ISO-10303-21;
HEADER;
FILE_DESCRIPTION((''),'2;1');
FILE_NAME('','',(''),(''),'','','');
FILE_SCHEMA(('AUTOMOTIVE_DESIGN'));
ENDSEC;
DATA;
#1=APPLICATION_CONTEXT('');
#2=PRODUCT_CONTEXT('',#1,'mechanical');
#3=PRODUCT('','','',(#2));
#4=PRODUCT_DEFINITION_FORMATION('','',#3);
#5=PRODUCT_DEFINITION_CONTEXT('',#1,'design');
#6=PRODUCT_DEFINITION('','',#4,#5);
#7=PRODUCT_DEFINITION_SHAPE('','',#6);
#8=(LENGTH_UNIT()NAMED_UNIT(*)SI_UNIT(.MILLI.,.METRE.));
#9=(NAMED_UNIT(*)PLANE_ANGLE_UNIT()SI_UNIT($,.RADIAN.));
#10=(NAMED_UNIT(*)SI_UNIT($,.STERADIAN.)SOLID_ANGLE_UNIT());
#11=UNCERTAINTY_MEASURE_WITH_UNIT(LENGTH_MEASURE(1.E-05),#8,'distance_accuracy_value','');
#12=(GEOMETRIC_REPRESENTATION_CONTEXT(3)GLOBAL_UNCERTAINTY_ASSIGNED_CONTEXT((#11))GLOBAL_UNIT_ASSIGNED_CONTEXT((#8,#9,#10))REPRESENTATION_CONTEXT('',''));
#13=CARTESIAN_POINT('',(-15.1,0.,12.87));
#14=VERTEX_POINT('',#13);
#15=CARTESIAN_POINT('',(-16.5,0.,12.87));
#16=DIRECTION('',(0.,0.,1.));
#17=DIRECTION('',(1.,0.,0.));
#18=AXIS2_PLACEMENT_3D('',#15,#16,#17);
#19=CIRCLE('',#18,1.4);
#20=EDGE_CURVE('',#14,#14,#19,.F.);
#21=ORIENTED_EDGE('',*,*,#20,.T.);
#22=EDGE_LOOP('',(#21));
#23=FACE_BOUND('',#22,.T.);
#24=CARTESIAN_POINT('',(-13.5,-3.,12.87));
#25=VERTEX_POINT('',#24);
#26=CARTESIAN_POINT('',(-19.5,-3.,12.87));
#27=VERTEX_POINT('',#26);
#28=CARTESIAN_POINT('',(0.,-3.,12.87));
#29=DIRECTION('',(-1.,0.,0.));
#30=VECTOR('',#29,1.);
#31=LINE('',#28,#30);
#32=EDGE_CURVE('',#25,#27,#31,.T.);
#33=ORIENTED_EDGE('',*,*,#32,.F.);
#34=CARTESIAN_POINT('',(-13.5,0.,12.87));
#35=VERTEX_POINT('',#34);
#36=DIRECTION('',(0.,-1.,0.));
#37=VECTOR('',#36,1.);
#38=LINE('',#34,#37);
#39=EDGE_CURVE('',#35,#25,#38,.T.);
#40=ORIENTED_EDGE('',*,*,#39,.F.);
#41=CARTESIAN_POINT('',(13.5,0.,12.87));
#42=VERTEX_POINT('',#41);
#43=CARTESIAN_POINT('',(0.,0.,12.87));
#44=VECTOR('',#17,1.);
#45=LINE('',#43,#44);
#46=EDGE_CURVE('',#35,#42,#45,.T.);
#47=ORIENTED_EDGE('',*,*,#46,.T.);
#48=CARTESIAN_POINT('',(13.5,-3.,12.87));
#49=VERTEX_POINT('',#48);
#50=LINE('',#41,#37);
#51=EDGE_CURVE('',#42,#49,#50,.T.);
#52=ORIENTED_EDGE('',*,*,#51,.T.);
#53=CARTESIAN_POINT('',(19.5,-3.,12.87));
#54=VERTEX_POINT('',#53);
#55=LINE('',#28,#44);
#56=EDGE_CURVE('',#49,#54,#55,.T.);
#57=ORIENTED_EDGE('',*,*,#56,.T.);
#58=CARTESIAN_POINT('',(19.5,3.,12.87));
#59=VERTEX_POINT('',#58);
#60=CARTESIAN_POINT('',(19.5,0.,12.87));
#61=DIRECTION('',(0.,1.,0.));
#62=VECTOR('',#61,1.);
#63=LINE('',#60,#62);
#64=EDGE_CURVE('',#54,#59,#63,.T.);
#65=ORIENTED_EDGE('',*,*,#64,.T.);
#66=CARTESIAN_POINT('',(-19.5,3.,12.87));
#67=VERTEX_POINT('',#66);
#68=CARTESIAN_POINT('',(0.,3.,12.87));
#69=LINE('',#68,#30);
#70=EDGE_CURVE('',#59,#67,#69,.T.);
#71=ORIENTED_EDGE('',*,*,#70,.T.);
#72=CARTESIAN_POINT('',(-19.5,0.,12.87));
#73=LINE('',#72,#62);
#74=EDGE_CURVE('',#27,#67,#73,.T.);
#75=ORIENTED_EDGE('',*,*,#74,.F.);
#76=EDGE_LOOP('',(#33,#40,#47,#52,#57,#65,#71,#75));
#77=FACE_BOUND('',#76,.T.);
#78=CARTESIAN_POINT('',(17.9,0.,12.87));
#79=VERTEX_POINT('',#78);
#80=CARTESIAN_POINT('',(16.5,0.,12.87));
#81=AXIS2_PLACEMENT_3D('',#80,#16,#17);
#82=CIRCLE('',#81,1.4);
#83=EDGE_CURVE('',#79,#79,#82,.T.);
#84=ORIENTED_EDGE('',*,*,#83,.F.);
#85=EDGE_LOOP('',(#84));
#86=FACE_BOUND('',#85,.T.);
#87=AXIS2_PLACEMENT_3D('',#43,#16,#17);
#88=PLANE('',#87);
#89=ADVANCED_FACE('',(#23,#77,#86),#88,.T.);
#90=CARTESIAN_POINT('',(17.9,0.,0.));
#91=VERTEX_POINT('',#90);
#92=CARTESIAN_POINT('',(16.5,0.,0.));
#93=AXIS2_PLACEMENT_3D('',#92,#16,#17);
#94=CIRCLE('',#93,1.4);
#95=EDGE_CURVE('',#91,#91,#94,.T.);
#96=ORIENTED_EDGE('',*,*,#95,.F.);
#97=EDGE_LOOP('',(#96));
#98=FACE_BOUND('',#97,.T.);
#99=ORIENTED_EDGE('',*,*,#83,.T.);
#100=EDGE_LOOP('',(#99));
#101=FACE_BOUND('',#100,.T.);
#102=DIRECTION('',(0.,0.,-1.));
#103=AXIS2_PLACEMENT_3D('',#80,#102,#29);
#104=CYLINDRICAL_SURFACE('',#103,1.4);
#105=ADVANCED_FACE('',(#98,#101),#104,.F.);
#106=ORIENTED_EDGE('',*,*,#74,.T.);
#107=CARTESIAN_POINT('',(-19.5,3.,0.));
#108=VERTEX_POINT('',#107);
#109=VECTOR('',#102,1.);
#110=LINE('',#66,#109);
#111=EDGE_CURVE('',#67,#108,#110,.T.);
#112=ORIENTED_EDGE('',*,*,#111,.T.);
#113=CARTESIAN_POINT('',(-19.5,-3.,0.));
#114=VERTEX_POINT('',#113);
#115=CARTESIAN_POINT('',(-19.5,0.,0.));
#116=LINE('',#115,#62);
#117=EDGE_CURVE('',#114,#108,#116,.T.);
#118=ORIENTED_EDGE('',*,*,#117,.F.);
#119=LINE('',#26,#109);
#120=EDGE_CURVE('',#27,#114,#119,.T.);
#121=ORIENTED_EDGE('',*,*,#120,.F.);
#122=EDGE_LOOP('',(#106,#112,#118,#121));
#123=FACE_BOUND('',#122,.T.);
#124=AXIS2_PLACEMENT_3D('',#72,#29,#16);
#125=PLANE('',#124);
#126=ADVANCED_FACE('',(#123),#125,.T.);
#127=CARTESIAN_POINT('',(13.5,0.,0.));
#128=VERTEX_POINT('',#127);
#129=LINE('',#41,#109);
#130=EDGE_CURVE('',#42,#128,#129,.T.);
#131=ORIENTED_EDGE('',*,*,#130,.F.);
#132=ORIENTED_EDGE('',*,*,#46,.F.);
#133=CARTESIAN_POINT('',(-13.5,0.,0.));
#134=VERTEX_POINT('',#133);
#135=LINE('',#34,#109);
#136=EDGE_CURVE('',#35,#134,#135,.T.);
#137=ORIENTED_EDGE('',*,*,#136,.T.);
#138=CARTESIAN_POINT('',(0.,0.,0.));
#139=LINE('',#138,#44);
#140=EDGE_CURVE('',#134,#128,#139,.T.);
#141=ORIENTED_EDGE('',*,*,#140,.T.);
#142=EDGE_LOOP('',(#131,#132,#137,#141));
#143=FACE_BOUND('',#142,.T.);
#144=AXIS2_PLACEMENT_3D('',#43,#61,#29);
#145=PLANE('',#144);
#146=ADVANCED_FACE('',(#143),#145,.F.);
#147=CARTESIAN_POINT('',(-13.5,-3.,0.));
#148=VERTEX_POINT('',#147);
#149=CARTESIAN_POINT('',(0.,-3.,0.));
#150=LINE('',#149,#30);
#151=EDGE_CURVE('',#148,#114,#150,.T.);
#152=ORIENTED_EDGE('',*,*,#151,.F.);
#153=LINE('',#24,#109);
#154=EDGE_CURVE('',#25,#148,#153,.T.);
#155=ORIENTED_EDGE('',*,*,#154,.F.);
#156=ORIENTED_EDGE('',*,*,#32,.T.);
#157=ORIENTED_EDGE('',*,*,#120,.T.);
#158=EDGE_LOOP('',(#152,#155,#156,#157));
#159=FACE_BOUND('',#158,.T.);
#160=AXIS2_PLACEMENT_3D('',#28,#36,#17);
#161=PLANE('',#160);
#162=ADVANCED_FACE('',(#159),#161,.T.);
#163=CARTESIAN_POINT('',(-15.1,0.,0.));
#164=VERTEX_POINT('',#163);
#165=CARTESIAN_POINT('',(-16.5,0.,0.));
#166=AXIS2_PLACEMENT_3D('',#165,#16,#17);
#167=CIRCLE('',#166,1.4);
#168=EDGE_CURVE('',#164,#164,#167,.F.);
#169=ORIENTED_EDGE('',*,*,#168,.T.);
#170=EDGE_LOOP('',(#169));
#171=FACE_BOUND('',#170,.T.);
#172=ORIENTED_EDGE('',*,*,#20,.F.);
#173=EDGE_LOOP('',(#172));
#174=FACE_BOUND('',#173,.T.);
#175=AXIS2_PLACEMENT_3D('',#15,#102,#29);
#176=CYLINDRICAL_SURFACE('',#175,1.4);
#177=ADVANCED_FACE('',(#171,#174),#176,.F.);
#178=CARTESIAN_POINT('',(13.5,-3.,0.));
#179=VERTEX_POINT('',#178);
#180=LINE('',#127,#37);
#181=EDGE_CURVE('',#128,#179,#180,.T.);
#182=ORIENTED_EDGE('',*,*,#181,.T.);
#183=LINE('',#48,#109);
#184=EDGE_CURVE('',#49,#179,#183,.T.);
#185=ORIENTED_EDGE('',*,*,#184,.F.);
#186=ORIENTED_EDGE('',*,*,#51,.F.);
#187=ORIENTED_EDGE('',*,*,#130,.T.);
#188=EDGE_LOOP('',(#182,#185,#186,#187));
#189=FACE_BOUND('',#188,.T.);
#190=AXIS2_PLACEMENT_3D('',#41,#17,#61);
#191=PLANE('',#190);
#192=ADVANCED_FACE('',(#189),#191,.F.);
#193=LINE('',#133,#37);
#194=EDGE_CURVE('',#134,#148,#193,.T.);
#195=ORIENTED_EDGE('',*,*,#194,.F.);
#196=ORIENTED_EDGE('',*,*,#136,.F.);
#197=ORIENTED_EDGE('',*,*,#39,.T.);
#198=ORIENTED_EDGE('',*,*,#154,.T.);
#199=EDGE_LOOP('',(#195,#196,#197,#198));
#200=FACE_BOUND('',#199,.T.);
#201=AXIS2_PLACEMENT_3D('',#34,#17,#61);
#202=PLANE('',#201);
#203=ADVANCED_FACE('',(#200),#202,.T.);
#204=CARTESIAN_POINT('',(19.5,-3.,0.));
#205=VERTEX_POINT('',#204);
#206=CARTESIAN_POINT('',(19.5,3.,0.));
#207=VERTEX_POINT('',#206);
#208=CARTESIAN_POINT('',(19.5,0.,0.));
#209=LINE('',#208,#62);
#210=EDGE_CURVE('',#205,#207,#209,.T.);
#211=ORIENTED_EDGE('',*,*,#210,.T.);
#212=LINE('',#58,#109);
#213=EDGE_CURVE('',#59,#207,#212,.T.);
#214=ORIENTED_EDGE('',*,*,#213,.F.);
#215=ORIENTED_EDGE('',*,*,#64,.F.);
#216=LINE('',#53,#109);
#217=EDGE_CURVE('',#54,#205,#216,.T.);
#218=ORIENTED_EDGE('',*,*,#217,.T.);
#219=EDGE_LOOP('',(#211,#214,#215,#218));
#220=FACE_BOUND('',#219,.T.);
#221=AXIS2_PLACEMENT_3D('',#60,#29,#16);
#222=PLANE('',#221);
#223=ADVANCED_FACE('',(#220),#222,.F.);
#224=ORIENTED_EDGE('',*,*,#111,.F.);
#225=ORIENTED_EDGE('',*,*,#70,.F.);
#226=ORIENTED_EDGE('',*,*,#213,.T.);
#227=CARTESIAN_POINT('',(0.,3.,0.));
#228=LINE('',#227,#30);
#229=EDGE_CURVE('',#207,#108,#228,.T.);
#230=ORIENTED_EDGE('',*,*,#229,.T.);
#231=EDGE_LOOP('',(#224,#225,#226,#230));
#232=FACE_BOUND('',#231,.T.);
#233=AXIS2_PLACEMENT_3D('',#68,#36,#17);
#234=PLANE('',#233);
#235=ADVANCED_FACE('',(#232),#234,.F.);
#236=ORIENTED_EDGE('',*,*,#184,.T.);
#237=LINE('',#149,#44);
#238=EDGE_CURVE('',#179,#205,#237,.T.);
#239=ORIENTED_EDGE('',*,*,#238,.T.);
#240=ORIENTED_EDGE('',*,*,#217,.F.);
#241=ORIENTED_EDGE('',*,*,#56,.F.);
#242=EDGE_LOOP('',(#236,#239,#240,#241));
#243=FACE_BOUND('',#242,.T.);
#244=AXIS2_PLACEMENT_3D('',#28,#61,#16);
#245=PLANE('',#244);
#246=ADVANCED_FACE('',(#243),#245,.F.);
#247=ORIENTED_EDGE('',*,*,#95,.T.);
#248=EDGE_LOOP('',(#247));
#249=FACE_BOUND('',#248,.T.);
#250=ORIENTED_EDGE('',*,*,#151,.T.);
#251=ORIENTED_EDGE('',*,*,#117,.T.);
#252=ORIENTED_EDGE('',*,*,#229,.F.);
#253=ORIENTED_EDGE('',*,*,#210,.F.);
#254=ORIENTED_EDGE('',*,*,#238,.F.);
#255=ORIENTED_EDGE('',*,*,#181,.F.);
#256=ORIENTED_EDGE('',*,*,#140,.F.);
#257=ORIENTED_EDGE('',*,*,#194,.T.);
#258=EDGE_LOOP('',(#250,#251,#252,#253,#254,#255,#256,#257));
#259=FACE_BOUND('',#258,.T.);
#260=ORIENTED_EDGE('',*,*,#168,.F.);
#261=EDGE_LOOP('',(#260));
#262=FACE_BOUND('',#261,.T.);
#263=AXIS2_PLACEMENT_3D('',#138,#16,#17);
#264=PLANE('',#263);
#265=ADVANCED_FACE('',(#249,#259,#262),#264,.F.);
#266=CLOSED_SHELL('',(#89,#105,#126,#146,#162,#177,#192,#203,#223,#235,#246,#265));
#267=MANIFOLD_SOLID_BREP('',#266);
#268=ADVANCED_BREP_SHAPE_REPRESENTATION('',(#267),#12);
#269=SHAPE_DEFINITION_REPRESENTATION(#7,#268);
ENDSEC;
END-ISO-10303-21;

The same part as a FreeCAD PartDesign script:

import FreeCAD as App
import Part
import Sketcher
Q = App.Units.Quantity

doc = App.newDocument("Part")
body = doc.addObject("PartDesign::Body", "Body")

# Sketch on XY plane
sketch1 = doc.addObject("Sketcher::SketchObject", "Sketch")
body.addObject(sketch1)
sketch1.AttachmentSupport = (doc.XY_Plane, [""])
sketch1.MapMode = "FlatFace"
sketch1.addGeometry([
    Part.LineSegment(App.Vector(-13.5, -3, 0), App.Vector(-13.5, 0, 0)),  # 0
    Part.LineSegment(App.Vector(-13.5, 0, 0), App.Vector(13.5, 0, 0)),  # 1
    Part.LineSegment(App.Vector(13.5, 0, 0), App.Vector(13.5, -3, 0)),  # 2
    Part.LineSegment(App.Vector(13.5, -3, 0), App.Vector(19.5, -3, 0)),  # 3
    Part.LineSegment(App.Vector(19.5, -3, 0), App.Vector(19.5, 3, 0)),  # 4
    Part.LineSegment(App.Vector(19.5, 3, 0), App.Vector(-19.5, 3, 0)),  # 5
    Part.LineSegment(App.Vector(-19.5, 3, 0), App.Vector(-19.5, -3, 0)),  # 6
    Part.LineSegment(App.Vector(-19.5, -3, 0), App.Vector(-13.5, -3, 0)),  # 7
    Part.Circle(App.Vector(16.5, 0, 0), App.Vector(0, 0, 1), 1.4),  # 8
    Part.Circle(App.Vector(-16.5, 0, 0), App.Vector(0, 0, 1), 1.4),  # 9
], False)
sketch1.addConstraint([
    Sketcher.Constraint("Coincident", 0, 2, 1, 1),
    Sketcher.Constraint("Coincident", 1, 2, 2, 1),
    Sketcher.Constraint("Coincident", 2, 2, 3, 1),
    Sketcher.Constraint("Coincident", 3, 2, 4, 1),
    Sketcher.Constraint("Coincident", 4, 2, 5, 1),
    Sketcher.Constraint("Coincident", 5, 2, 6, 1),
    Sketcher.Constraint("Coincident", 6, 2, 7, 1),
    Sketcher.Constraint("Coincident", 7, 2, 0, 1),
    Sketcher.Constraint("Vertical", 0),
    Sketcher.Constraint("Horizontal", 1),
    Sketcher.Constraint("Vertical", 2),
    Sketcher.Constraint("Horizontal", 3),
    Sketcher.Constraint("Vertical", 4),
    Sketcher.Constraint("Horizontal", 5),
    Sketcher.Constraint("Vertical", 6),
    Sketcher.Constraint("Horizontal", 7),
    Sketcher.Constraint("Equal", 8, 9),
    Sketcher.Constraint("Symmetric", 8, 3, 9, 3, -1, 1),
    Sketcher.Constraint("Symmetric", 0, 2, 1, 2, -1, 1),
    Sketcher.Constraint("Symmetric", 3, 2, 5, 2, -1, 1),
    Sketcher.Constraint("PointOnObject", 8, 3, -1),
    Sketcher.Constraint("Horizontal", 3, 2, 6, 2),
    Sketcher.Constraint("Equal", 7, 4),
    Sketcher.Constraint("Diameter", 8, Q("2.8 mm")),
    Sketcher.Constraint("DistanceX", 1, 1, 1, 2, Q("27 mm")),
    Sketcher.Constraint("DistanceX", 3, 1, 3, 2, Q("6 mm")),
    Sketcher.Constraint("DistanceX", 9, 3, 8, 3, Q("33 mm")),
])
pad1 = doc.addObject("PartDesign::Pad", "Pad")
body.addObject(pad1)
pad1.Profile = sketch1
pad1.Length = 12.87

doc.recompute()
